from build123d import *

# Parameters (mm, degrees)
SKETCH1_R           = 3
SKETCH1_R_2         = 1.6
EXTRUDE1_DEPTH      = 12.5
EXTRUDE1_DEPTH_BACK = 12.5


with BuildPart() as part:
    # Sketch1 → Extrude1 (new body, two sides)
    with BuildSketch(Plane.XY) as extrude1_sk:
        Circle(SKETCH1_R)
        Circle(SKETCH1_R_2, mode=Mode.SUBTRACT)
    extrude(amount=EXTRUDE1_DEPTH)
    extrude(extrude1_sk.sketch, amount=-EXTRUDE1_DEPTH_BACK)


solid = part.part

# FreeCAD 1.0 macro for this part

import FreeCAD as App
import Part
import Sketcher
from FreeCAD import Vector
Q = App.Units.Quantity

doc = App.newDocument("Part")
body = doc.addObject("PartDesign::Body", "Body")

# Sketch on XY plane
sketch1 = body.newObject("Sketcher::SketchObject", "Sketch")
sketch1.AttachmentSupport = (doc.getObject("XY_Plane"), [""])
sketch1.MapMode = "FlatFace"
sketch1.addGeometry([
    Part.Circle(Vector(0, 0, 0), Vector(0, 0, 1), 3),
    Part.Circle(Vector(0, 0, 0), Vector(0, 0, 1), 1.6),
], False)
sketch1.addConstraint([
    Sketcher.Constraint("Coincident", 0, 3, -1, 1),
    Sketcher.Constraint("Coincident", 1, 3, -1, 1),
    Sketcher.Constraint("Diameter", 0, Q("6 mm")),
    Sketcher.Constraint("Diameter", 1, Q("3.2 mm")),
])
pad1 = body.newObject("PartDesign::Pad", "Pad")
pad1.Profile = sketch1
pad1.Type = "TwoLengths"
pad1.Length = 12.5
pad1.Length2 = 12.5

doc.recompute()
